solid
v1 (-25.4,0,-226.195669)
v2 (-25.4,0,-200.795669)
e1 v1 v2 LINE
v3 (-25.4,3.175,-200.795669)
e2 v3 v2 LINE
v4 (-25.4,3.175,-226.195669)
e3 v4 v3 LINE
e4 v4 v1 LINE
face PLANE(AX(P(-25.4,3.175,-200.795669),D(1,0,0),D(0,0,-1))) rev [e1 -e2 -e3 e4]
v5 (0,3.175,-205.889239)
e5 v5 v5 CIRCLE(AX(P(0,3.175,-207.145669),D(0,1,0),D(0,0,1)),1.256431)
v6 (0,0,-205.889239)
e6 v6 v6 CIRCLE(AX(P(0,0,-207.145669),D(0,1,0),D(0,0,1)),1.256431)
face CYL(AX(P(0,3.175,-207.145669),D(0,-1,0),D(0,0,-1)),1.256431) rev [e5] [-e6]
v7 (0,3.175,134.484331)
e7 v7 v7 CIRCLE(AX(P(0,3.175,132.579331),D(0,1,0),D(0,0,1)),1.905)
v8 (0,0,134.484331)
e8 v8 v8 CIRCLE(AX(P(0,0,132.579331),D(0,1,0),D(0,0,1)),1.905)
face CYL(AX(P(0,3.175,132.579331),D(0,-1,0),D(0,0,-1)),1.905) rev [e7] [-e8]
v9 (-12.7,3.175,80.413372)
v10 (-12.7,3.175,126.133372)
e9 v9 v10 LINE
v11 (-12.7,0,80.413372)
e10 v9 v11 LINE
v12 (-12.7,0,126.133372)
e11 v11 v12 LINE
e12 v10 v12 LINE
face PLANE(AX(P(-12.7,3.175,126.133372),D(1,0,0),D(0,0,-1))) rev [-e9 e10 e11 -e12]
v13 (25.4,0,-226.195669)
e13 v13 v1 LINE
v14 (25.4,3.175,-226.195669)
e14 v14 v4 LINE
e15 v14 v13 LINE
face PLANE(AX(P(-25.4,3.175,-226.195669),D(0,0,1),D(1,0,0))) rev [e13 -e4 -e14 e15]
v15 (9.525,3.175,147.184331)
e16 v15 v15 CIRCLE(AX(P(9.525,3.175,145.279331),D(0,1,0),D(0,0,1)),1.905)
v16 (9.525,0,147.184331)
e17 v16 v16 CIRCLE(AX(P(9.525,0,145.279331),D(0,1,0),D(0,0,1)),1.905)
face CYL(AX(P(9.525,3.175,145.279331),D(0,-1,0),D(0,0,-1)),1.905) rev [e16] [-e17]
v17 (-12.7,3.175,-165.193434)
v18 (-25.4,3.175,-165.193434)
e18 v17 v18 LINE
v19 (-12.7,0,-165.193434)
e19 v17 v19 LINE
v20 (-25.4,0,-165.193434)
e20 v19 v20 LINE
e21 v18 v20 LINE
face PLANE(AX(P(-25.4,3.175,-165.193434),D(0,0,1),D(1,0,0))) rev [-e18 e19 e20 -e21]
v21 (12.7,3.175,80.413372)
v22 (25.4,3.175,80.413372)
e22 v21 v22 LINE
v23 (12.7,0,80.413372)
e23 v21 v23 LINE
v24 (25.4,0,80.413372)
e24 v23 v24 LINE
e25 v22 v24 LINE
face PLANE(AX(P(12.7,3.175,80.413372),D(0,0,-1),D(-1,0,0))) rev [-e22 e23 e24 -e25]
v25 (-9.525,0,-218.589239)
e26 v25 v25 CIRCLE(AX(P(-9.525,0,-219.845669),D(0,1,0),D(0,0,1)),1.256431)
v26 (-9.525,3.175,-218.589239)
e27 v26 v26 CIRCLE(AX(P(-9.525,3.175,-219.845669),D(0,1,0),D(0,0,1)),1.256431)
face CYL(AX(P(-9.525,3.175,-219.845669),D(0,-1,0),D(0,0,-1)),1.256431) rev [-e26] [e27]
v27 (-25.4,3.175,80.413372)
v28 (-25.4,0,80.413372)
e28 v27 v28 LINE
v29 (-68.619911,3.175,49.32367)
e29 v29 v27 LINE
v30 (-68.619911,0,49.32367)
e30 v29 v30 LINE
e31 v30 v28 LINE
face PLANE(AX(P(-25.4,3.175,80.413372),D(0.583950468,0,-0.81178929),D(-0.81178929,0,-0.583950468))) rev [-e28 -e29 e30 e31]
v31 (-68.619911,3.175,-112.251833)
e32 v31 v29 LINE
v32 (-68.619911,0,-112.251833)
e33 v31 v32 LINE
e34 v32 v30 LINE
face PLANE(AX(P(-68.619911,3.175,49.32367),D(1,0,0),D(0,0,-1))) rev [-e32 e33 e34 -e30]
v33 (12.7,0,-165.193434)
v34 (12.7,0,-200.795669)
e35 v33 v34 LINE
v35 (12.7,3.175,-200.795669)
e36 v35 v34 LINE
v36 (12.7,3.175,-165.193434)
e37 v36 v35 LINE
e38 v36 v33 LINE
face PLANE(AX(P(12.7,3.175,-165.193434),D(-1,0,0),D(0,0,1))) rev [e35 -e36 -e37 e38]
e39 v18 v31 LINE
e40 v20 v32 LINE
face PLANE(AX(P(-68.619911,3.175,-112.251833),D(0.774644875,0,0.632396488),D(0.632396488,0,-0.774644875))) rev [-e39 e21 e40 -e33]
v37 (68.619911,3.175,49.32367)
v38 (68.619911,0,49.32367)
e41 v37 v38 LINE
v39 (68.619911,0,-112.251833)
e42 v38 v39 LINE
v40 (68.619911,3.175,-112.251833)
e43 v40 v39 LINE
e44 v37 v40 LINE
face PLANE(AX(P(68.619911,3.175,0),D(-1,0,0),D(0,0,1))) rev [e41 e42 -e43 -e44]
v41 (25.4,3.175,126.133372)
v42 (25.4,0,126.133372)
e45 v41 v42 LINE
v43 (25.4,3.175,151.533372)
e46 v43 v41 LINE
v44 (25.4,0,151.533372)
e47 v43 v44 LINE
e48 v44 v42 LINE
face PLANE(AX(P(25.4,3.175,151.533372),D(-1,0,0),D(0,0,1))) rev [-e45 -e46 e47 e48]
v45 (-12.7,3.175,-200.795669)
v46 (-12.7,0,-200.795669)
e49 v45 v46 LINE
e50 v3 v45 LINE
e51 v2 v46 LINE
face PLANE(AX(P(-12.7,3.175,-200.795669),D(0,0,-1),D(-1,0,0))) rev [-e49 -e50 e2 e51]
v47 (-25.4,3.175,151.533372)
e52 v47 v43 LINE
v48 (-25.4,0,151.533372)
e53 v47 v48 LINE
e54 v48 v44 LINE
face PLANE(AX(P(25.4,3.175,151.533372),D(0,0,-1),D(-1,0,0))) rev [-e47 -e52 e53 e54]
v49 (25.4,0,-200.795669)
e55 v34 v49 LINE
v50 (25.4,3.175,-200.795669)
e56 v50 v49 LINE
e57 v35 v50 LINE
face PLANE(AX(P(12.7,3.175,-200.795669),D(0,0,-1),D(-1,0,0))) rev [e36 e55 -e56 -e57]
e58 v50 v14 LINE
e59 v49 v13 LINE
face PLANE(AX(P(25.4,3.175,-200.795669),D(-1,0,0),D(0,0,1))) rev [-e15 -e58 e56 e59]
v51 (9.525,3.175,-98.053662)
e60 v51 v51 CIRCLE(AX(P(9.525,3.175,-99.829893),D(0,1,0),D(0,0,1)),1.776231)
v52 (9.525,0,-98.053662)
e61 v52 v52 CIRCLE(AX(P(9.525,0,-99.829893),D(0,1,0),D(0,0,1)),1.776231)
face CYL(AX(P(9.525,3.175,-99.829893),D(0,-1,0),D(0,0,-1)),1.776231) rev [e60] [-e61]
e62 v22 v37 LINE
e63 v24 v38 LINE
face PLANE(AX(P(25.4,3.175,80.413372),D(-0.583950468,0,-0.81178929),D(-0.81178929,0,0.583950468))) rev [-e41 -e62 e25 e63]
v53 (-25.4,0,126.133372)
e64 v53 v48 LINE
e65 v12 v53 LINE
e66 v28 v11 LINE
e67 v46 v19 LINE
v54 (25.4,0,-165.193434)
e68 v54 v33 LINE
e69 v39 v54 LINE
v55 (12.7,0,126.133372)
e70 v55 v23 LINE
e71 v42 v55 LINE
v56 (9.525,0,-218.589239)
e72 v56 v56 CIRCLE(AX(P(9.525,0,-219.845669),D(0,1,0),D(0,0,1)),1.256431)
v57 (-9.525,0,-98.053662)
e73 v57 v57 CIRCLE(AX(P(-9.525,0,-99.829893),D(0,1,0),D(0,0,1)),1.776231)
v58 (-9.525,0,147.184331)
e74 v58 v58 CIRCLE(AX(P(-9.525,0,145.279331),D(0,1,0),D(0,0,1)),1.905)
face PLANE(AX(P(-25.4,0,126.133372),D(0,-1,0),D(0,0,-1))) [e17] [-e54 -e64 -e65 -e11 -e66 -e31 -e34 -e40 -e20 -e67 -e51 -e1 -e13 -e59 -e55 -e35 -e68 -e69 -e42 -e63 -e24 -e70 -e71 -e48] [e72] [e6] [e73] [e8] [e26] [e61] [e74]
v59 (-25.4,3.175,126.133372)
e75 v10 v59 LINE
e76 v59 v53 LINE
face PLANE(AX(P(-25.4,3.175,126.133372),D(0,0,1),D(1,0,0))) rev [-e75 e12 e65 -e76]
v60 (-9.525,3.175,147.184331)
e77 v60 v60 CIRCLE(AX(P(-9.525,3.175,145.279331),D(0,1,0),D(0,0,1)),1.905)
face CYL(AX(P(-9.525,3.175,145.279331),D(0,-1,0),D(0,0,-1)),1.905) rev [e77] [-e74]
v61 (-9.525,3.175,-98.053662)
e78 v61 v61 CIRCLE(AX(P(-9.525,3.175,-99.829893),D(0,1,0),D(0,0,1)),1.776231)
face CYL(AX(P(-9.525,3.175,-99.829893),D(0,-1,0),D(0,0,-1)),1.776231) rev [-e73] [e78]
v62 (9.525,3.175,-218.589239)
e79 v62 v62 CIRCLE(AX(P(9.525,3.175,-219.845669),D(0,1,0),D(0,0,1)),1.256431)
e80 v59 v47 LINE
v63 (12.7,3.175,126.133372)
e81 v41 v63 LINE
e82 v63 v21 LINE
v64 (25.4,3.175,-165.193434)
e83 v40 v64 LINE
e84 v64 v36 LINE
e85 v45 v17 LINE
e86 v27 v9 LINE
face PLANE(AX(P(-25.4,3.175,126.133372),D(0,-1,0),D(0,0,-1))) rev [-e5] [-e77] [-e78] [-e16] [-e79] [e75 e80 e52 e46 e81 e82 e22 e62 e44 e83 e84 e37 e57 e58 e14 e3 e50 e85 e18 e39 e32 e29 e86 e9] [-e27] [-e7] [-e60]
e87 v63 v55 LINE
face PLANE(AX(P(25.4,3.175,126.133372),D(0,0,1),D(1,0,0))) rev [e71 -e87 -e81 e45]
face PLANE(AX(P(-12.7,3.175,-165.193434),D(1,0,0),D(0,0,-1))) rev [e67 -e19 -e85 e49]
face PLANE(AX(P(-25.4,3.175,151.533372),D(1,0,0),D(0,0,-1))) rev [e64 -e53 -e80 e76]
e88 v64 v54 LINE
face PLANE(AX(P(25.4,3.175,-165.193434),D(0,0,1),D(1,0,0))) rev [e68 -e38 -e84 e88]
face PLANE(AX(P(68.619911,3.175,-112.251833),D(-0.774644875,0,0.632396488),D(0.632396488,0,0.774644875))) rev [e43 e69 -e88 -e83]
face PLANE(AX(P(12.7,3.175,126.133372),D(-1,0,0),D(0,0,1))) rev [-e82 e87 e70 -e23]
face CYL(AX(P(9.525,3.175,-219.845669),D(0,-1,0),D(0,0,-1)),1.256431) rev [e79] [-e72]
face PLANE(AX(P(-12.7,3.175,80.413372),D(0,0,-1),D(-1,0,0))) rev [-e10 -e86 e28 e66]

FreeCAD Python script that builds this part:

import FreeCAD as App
import Part
import Sketcher
from FreeCAD import Vector
Q = App.Units.Quantity

doc = App.newDocument("Part")
body = doc.addObject("PartDesign::Body", "Body")

sketch1 = body.newObject("Sketcher::SketchObject", "Sketch")
sketch1.AttachmentSupport = (doc.getObject("XZ_Plane"), [""])
sketch1.MapMode = "FlatFace"
sketch1.addGeometry([
    Part.LineSegment(Vector(-25.4, 151.5, 0), Vector(25.4, 151.5, 0)),
    Part.LineSegment(Vector(25.4, 151.5, 0), Vector(25.4, 126.1, 0)),
    Part.LineSegment(Vector(25.4, 126.1, 0), Vector(12.7, 126.1, 0)),
    Part.LineSegment(Vector(12.7, 126.1, 0), Vector(12.7, 80.4, 0)),
    Part.LineSegment(Vector(12.7, 80.4, 0), Vector(25.4, 80.4, 0)),
    Part.LineSegment(Vector(25.4, 80.4, 0), Vector(68.6, 49.3, 0)),
    Part.LineSegment(Vector(68.6, 49.3, 0), Vector(68.6, -112.3, 0)),
    Part.LineSegment(Vector(68.6, -112.3, 0), Vector(25.4, -165.2, 0)),
    Part.LineSegment(Vector(25.4, -165.2, 0), Vector(12.7, -165.2, 0)),
    Part.LineSegment(Vector(12.7, -165.2, 0), Vector(12.7, -200.8, 0)),
    Part.LineSegment(Vector(12.7, -200.8, 0), Vector(25.4, -200.8, 0)),
    Part.LineSegment(Vector(25.4, -200.8, 0), Vector(25.4, -226.2, 0)),
    Part.LineSegment(Vector(25.4, -226.2, 0), Vector(-25.4, -226.2, 0)),
    Part.LineSegment(Vector(-25.4, -226.2, 0), Vector(-25.4, -200.8, 0)),
    Part.LineSegment(Vector(-25.4, -200.8, 0), Vector(-12.7, -200.8, 0)),
    Part.LineSegment(Vector(-12.7, -200.8, 0), Vector(-12.7, -165.2, 0)),
    Part.LineSegment(Vector(-12.7, -165.2, 0), Vector(-25.4, -165.2, 0)),
    Part.LineSegment(Vector(-25.4, -165.2, 0), Vector(-68.6, -112.3, 0)),
    Part.LineSegment(Vector(-68.6, -112.3, 0), Vector(-68.6, 49.3, 0)),
    Part.LineSegment(Vector(-68.6, 49.3, 0), Vector(-25.4, 80.4, 0)),
    Part.LineSegment(Vector(-25.4, 80.4, 0), Vector(-12.7, 80.4, 0)),
    Part.LineSegment(Vector(-12.7, 80.4, 0), Vector(-12.7, 126.1, 0)),
    Part.LineSegment(Vector(-12.7, 126.1, 0), Vector(-25.4, 126.1, 0)),
    Part.LineSegment(Vector(-25.4, 126.1, 0), Vector(-25.4, 151.5, 0)),
    Part.Circle(Vector(9.5, 145.3, 0), Vector(0, 0, 1), 1.9),
    Part.Circle(Vector(0, 132.6, 0), Vector(0, 0, 1), 1.9),
    Part.Circle(Vector(-9.5, 145.3, 0), Vector(0, 0, 1), 1.9),
    Part.Circle(Vector(9.5, -99.8, 0), Vector(0, 0, 1), 1.8),
    Part.Circle(Vector(9.5, -219.8, 0), Vector(0, 0, 1), 1.3),
    Part.Circle(Vector(-9.5, -99.8, 0), Vector(0, 0, 1), 1.8),
    Part.Circle(Vector(0, -207.1, 0), Vector(0, 0, 1), 1.3),
    Part.Circle(Vector(-9.5, -219.8, 0), Vector(0, 0, 1), 1.3),
], False)
sketch1.addConstraint([
    Sketcher.Constraint("Coincident", 0, 2, 1, 1),
    Sketcher.Constraint("Coincident", 1, 2, 2, 1),
    Sketcher.Constraint("Coincident", 2, 2, 3, 1),
    Sketcher.Constraint("Coincident", 3, 2, 4, 1),
    Sketcher.Constraint("Coincident", 4, 2, 5, 1),
    Sketcher.Constraint("Coincident", 5, 2, 6, 1),
    Sketcher.Constraint("Coincident", 6, 2, 7, 1),
    Sketcher.Constraint("Coincident", 7, 2, 8, 1),
    Sketcher.Constraint("Coincident", 8, 2, 9, 1),
    Sketcher.Constraint("Coincident", 9, 2, 10, 1),
    Sketcher.Constraint("Coincident", 10, 2, 11, 1),
    Sketcher.Constraint("Coincident", 11, 2, 12, 1),
    Sketcher.Constraint("Coincident", 12, 2, 13, 1),
    Sketcher.Constraint("Coincident", 13, 2, 14, 1),
    Sketcher.Constraint("Coincident", 14, 2, 15, 1),
    Sketcher.Constraint("Coincident", 15, 2, 16, 1),
    Sketcher.Constraint("Coincident", 16, 2, 17, 1),
    Sketcher.Constraint("Coincident", 17, 2, 18, 1),
    Sketcher.Constraint("Coincident", 18, 2, 19, 1),
    Sketcher.Constraint("Coincident", 19, 2, 20, 1),
    Sketcher.Constraint("Coincident", 20, 2, 21, 1),
    Sketcher.Constraint("Coincident", 21, 2, 22, 1),
    Sketcher.Constraint("Coincident", 22, 2, 23, 1),
    Sketcher.Constraint("Coincident", 23, 2, 0, 1),
    Sketcher.Constraint("Horizontal", 0),
    Sketcher.Constraint("Vertical", 1),
    Sketcher.Constraint("Horizontal", 2),
    Sketcher.Constraint("Vertical", 3),
    Sketcher.Constraint("Horizontal", 4),
    Sketcher.Constraint("Vertical", 6),
    Sketcher.Constraint("Horizontal", 8),
    Sketcher.Constraint("Vertical", 9),
    Sketcher.Constraint("Horizontal", 10),
    Sketcher.Constraint("Vertical", 11),
    Sketcher.Constraint("Horizontal", 12),
    Sketcher.Constraint("Vertical", 13),
    Sketcher.Constraint("Horizontal", 14),
    Sketcher.Constraint("Vertical", 15),
    Sketcher.Constraint("Horizontal", 16),
    Sketcher.Constraint("Vertical", 18),
    Sketcher.Constraint("Horizontal", 20),
    Sketcher.Constraint("Vertical", 21),
    Sketcher.Constraint("Horizontal", 22),
    Sketcher.Constraint("Vertical", 23),
    Sketcher.Constraint("Equal", 24, 25),
    Sketcher.Constraint("Equal", 25, 26),
    Sketcher.Constraint("Equal", 27, 29),
    Sketcher.Constraint("Equal", 28, 30),
    Sketcher.Constraint("Equal", 30, 31),
    Sketcher.Constraint("Symmetric", 24, 3, 26, 3, -2),
    Sketcher.Constraint("Symmetric", 27, 3, 29, 3, -2),
    Sketcher.Constraint("Symmetric", 28, 3, 31, 3, -2),
    Sketcher.Constraint("Symmetric", 10, 2, 13, 2, -2),
    Sketcher.Constraint("Symmetric", 8, 2, 15, 2, -2),
    Sketcher.Constraint("Symmetric", 6, 2, 17, 2, -2),
    Sketcher.Constraint("Symmetric", 4, 2, 19, 2, -2),
    Sketcher.Constraint("Symmetric", 2, 2, 21, 2, -2),
    Sketcher.Constraint("PointOnObject", 25, 3, -2),
    Sketcher.Constraint("PointOnObject", 30, 3, -2),
    Sketcher.Constraint("Horizontal", 5, 2, 18, 2),
    Sketcher.Constraint("Vertical", 24, 3, 27, 3),
    Sketcher.Constraint("Vertical", 27, 3, 28, 3),
    Sketcher.Constraint("Vertical", 1, 2, 4, 2),
    Sketcher.Constraint("Vertical", 4, 2, 7, 2),
    Sketcher.Constraint("Vertical", 3, 2, 8, 2),
    Sketcher.Constraint("Vertical", 7, 2, 10, 2),
    Sketcher.Constraint("Vertical", 13, 2, 16, 2),
    Sketcher.Constraint("Vertical", 19, 2, 22, 2),
    Sketcher.Constraint("Equal", 1, 11),
    Sketcher.Constraint("Diameter", 24, Q("0.15 in")),
    Sketcher.Constraint("DistanceX", 0, 1, 0, 2, Q("2 in")),
    Sketcher.Constraint("DistanceY", 1, 2, 1, 1, Q("1 in")),
    Sketcher.Constraint("DistanceX", 2, 2, 2, 1, Q("0.5 in")),
    Sketcher.Constraint("DistanceY", 3, 2, 3, 1, Q("1.8 in")),
    Sketcher.Constraint("DistanceY", 25, 3, 24, 3, Q("0.5 in")),
    Sketcher.Constraint("DistanceY", 28, 3, 30, 3, Q("0.5 in")),
    Sketcher.Constraint("DistanceX", 26, 3, 24, 3, Q("0.75 in")),
    Sketcher.Constraint("DistanceY", 30, 3, 9, 2, Q("0.25 in")),
    Sketcher.Constraint("Diameter", 28, Q("2.512862 mm")),
    Sketcher.Constraint("DistanceY", 28, 3, 25, 3, Q("13.875 in")),
    Sketcher.Constraint("Diameter", 27, Q("3.552462 mm")),
    Sketcher.Constraint("DistanceY", 7, 2, 6, 2, Q("52.941601 mm")),
    Sketcher.Constraint("Distance", 7, Q("68.34306 mm")),
    Sketcher.Constraint("DistanceY", 6, 2, 6, 1, Q("161.575502 mm")),
    Sketcher.Constraint("DistanceY", 9, 2, 9, 1, Q("35.602236 mm")),
    Sketcher.Constraint("DistanceY", -1, 1, 24, 3, Q("145.279331 mm")),
    Sketcher.Constraint("DistanceY", -1, 1, 0, 2, Q("151.533372 mm")),
    Sketcher.Constraint("DistanceY", 6, 2, 27, 3, Q("12.42194 mm")),
])
pad1 = body.newObject("PartDesign::Pad", "Pad")
pad1.Profile = sketch1
pad1.Length = Q("0.125 in")
pad1.Reversed = True

doc.recompute()
